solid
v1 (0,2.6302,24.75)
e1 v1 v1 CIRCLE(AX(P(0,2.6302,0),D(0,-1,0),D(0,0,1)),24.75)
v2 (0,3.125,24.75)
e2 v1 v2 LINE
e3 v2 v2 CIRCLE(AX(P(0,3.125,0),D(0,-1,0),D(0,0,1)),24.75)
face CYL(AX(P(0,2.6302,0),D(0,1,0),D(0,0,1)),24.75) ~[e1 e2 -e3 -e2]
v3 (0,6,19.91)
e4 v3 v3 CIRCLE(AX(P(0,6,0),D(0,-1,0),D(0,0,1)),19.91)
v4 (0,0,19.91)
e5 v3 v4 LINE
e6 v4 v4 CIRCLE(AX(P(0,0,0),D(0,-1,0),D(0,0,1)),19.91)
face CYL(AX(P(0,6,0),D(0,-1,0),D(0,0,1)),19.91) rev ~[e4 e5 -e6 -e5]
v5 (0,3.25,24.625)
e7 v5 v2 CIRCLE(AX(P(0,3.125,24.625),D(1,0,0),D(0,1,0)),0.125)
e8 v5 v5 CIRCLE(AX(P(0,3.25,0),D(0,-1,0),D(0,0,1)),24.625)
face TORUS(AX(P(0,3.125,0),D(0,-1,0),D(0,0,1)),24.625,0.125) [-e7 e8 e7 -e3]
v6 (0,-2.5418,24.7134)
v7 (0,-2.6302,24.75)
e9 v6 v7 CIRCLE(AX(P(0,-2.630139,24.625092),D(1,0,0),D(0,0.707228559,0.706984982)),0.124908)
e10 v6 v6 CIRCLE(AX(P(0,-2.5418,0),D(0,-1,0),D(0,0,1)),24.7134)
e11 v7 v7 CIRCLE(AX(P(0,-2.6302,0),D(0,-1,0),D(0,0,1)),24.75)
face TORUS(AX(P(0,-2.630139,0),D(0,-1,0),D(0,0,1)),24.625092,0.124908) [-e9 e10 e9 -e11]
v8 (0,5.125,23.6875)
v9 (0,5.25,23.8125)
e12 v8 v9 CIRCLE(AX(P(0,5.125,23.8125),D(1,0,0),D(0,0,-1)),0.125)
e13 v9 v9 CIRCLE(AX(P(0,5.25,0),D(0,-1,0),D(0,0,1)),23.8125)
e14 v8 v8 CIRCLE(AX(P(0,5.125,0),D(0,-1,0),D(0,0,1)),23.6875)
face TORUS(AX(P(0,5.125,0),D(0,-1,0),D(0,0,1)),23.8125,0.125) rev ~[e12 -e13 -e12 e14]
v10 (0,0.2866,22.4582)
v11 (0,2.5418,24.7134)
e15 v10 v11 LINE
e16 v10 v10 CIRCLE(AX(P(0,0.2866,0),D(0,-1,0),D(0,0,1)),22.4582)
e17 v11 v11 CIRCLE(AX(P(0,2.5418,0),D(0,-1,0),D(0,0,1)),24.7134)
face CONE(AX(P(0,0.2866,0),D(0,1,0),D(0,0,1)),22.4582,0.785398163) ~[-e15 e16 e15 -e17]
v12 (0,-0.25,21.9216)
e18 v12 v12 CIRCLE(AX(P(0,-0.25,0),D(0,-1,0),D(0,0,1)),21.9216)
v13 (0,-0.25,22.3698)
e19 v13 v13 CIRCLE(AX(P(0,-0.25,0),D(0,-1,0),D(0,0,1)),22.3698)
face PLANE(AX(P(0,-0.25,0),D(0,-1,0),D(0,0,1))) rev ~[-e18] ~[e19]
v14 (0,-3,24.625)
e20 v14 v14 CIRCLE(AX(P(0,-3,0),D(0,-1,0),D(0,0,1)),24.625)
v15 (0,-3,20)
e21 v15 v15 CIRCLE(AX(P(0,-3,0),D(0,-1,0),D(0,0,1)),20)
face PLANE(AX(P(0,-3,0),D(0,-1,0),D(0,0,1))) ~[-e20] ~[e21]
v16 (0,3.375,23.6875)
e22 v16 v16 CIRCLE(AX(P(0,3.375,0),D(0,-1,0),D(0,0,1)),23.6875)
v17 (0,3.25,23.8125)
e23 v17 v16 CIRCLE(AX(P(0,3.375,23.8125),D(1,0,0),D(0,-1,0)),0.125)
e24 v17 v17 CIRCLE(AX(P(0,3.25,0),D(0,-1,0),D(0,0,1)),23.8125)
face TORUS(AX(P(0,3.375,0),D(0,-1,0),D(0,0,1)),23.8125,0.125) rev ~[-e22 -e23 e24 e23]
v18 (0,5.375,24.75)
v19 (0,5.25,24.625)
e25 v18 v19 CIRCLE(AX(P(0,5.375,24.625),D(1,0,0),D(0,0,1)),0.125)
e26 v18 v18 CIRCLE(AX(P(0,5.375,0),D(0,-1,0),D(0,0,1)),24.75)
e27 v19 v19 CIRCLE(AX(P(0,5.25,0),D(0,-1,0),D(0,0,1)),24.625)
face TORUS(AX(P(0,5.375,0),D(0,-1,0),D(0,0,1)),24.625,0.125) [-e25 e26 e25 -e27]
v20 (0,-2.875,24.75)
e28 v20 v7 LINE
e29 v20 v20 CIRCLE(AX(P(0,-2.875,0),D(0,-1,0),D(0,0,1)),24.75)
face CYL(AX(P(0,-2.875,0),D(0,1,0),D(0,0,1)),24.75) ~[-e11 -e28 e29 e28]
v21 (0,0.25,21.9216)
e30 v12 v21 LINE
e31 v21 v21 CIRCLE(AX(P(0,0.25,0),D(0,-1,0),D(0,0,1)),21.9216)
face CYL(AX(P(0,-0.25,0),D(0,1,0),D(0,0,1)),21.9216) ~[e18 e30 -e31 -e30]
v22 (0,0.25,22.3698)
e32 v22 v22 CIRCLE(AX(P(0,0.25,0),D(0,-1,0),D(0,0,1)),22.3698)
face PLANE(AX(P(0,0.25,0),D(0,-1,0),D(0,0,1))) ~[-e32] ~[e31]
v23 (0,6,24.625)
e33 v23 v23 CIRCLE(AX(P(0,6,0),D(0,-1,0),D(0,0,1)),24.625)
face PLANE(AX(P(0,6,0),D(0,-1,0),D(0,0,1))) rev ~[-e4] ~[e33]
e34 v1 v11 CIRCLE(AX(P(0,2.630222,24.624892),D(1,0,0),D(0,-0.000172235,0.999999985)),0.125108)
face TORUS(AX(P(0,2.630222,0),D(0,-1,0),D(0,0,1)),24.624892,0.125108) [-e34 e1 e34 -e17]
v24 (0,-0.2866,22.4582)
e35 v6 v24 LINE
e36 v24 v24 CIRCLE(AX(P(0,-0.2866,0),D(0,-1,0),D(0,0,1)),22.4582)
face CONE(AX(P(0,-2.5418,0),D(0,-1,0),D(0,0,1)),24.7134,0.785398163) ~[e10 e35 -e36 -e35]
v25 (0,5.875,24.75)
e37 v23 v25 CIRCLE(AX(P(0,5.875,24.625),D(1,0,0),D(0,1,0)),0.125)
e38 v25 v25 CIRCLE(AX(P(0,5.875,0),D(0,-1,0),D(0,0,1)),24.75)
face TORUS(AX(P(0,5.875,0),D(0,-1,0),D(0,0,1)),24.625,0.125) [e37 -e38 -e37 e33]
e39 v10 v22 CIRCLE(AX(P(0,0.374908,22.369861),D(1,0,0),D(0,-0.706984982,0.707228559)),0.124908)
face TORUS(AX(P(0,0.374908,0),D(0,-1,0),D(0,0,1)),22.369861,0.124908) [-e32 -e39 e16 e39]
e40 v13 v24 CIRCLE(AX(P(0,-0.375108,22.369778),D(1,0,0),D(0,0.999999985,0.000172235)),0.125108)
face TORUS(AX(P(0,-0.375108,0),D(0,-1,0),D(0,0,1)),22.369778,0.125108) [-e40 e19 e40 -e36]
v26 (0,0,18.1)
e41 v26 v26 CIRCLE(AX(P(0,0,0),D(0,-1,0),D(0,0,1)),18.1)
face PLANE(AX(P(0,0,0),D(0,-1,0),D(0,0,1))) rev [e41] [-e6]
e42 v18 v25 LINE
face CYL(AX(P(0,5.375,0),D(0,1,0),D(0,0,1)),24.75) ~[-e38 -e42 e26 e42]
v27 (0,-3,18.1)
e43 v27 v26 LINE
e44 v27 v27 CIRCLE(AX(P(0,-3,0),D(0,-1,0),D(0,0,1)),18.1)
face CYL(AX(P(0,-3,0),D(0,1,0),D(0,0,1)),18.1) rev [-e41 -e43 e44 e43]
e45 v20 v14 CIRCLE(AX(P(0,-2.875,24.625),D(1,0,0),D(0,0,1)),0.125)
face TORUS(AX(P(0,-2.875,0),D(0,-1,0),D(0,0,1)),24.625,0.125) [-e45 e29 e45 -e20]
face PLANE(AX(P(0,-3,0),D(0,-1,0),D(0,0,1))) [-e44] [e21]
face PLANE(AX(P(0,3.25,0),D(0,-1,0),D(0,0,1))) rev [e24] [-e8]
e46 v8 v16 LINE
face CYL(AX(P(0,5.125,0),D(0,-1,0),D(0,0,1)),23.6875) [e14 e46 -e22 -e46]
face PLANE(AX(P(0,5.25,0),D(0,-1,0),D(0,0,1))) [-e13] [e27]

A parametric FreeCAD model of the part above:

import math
import FreeCAD as App
import Part
import Sketcher
Q = App.Units.Quantity

doc = App.newDocument("Part")
params = doc.addObject("Spreadsheet::Sheet", "Params")
for row, (alias, value) in enumerate([
    ("sketch1_width", "6 mm"),
    ("sketch1_width2", "3 mm"),
    ("sketch1_width3", "0.5 mm"),
    ("sketch1_height", "1.81 mm"),
    ("revolution_angle", "360 deg"),
], start=1):
    params.set(f"A{row}", alias)
    params.set(f"B{row}", "=" + value)
    params.setAlias(f"B{row}", alias)

body = doc.addObject("PartDesign::Body", "Body")

sketch1 = body.newObject("Sketcher::SketchObject", "Sketch")
sketch1.AttachmentSupport = (doc.getObject("YZ_Plane"), [""])
sketch1.MapMode = "FlatFace"
sketch1.addGeometry(Part.LineSegment(App.Vector(0, 19.91, 0), App.Vector(6, 19.91, 0)), False)
sketch1.addGeometry(Part.LineSegment(App.Vector(6, 19.91, 0), App.Vector(6, 24.62, 0)), False)
sketch1.addGeometry(Part.ArcOfCircle(Part.Circle(App.Vector(5.88, 24.62, 0), App.Vector(0, 0, 1), 0.12), math.radians(0), math.radians(90)), False)
sketch1.addGeometry(Part.LineSegment(App.Vector(5.88, 24.75, 0), App.Vector(5.38, 24.75, 0)), False)
sketch1.addGeometry(Part.ArcOfCircle(Part.Circle(App.Vector(5.38, 24.62, 0), App.Vector(0, 0, 1), 0.12), math.radians(90), math.radians(180)), False)
sketch1.addGeometry(Part.LineSegment(App.Vector(5.25, 24.62, 0), App.Vector(5.25, 23.81, 0)), False)
sketch1.addGeometry(Part.ArcOfCircle(Part.Circle(App.Vector(5.12, 23.81, 0), App.Vector(0, 0, 1), 0.12), math.radians(-90), math.radians(0)), False)
sketch1.addGeometry(Part.LineSegment(App.Vector(5.12, 23.69, 0), App.Vector(3.38, 23.69, 0)), False)
sketch1.addGeometry(Part.ArcOfCircle(Part.Circle(App.Vector(3.38, 23.81, 0), App.Vector(0, 0, 1), 0.12), math.radians(180), math.radians(270)), False)
sketch1.addGeometry(Part.LineSegment(App.Vector(3.25, 23.81, 0), App.Vector(3.25, 24.62, 0)), False)
sketch1.addGeometry(Part.ArcOfCircle(Part.Circle(App.Vector(3.12, 24.62, 0), App.Vector(0, 0, 1), 0.12), math.radians(0), math.radians(90)), False)
sketch1.addGeometry(Part.LineSegment(App.Vector(3.12, 24.75, 0), App.Vector(2.63, 24.75, 0)), False)
sketch1.addGeometry(Part.ArcOfCircle(Part.Circle(App.Vector(2.63, 24.62, 0), App.Vector(0, 0, 1), 0.12), math.radians(90), math.radians(135)), False)
sketch1.addGeometry(Part.LineSegment(App.Vector(2.54, 24.71, 0), App.Vector(0.29, 22.46, 0)), False)
sketch1.addGeometry(Part.ArcOfCircle(Part.Circle(App.Vector(0.38, 22.37, 0), App.Vector(0, 0, 1), 0.13), math.radians(135), math.radians(180)), False)
sketch1.addGeometry(Part.LineSegment(App.Vector(0.25, 22.37, 0), App.Vector(0.25, 21.92, 0)), False)
sketch1.addGeometry(Part.LineSegment(App.Vector(0.25, 21.92, 0), App.Vector(-0.25, 21.92, 0)), False)
sketch1.addGeometry(Part.LineSegment(App.Vector(-0.25, 21.92, 0), App.Vector(-0.25, 22.37, 0)), False)
sketch1.addGeometry(Part.ArcOfCircle(Part.Circle(App.Vector(-0.38, 22.37, 0), App.Vector(0, 0, 1), 0.12), math.radians(0), math.radians(45)), False)
sketch1.addGeometry(Part.LineSegment(App.Vector(-0.29, 22.46, 0), App.Vector(-2.54, 24.71, 0)), False)
sketch1.addGeometry(Part.ArcOfCircle(Part.Circle(App.Vector(-2.63, 24.62, 0), App.Vector(0, 0, 1), 0.13), math.radians(45), math.radians(90)), False)
sketch1.addGeometry(Part.LineSegment(App.Vector(-2.63, 24.75, 0), App.Vector(-2.88, 24.75, 0)), False)
sketch1.addGeometry(Part.ArcOfCircle(Part.Circle(App.Vector(-2.88, 24.62, 0), App.Vector(0, 0, 1), 0.12), math.radians(90), math.radians(180)), False)
sketch1.addGeometry(Part.LineSegment(App.Vector(-3, 24.62, 0), App.Vector(-3, 18.1, 0)), False)
sketch1.addGeometry(Part.LineSegment(App.Vector(-3, 18.1, 0), App.Vector(0, 18.1, 0)), False)
sketch1.addGeometry(Part.LineSegment(App.Vector(0, 18.1, 0), App.Vector(0, 19.91, 0)), False)
sketch1.addConstraint(Sketcher.Constraint("Coincident", 0, 2, 1, 1))
sketch1.addConstraint(Sketcher.Constraint("Tangent", 1, 2, 2, 1))
sketch1.addConstraint(Sketcher.Constraint("Tangent", 2, 2, 3, 1))
sketch1.addConstraint(Sketcher.Constraint("Tangent", 3, 2, 4, 1))
sketch1.addConstraint(Sketcher.Constraint("Tangent", 4, 2, 5, 1))
sketch1.addConstraint(Sketcher.Constraint("Tangent", 5, 2, 6, 2))
sketch1.addConstraint(Sketcher.Constraint("Tangent", 6, 1, 7, 1))
sketch1.addConstraint(Sketcher.Constraint("Tangent", 7, 2, 8, 2))
sketch1.addConstraint(Sketcher.Constraint("Tangent", 8, 1, 9, 1))
sketch1.addConstraint(Sketcher.Constraint("Tangent", 9, 2, 10, 1))
sketch1.addConstraint(Sketcher.Constraint("Tangent", 10, 2, 11, 1))
sketch1.addConstraint(Sketcher.Constraint("Tangent", 11, 2, 12, 1))
sketch1.addConstraint(Sketcher.Constraint("Tangent", 12, 2, 13, 1))
sketch1.addConstraint(Sketcher.Constraint("Tangent", 13, 2, 14, 1))
sketch1.addConstraint(Sketcher.Constraint("Tangent", 14, 2, 15, 1))
sketch1.addConstraint(Sketcher.Constraint("Coincident", 15, 2, 16, 1))
sketch1.addConstraint(Sketcher.Constraint("Coincident", 16, 2, 17, 1))
sketch1.addConstraint(Sketcher.Constraint("Tangent", 17, 2, 18, 1))
sketch1.addConstraint(Sketcher.Constraint("Tangent", 18, 2, 19, 1))
sketch1.addConstraint(Sketcher.Constraint("Tangent", 19, 2, 20, 1))
sketch1.addConstraint(Sketcher.Constraint("Tangent", 20, 2, 21, 1))
sketch1.addConstraint(Sketcher.Constraint("Tangent", 21, 2, 22, 1))
sketch1.addConstraint(Sketcher.Constraint("Tangent", 22, 2, 23, 1))
sketch1.addConstraint(Sketcher.Constraint("Coincident", 23, 2, 24, 1))
sketch1.addConstraint(Sketcher.Constraint("Coincident", 24, 2, 25, 1))
sketch1.addConstraint(Sketcher.Constraint("Coincident", 25, 2, 0, 1))
sketch1.addConstraint(Sketcher.Constraint("Horizontal", 0))
sketch1.addConstraint(Sketcher.Constraint("Vertical", 1))
sketch1.addConstraint(Sketcher.Constraint("Horizontal", 3))
sketch1.addConstraint(Sketcher.Constraint("Vertical", 5))
sketch1.addConstraint(Sketcher.Constraint("Horizontal", 7))
sketch1.addConstraint(Sketcher.Constraint("Vertical", 9))
sketch1.addConstraint(Sketcher.Constraint("Horizontal", 11))
sketch1.addConstraint(Sketcher.Constraint("Vertical", 15))
sketch1.addConstraint(Sketcher.Constraint("Horizontal", 16))
sketch1.addConstraint(Sketcher.Constraint("Vertical", 17))
sketch1.addConstraint(Sketcher.Constraint("Horizontal", 21))
sketch1.addConstraint(Sketcher.Constraint("Vertical", 23))
sketch1.addConstraint(Sketcher.Constraint("Horizontal", 24))
sketch1.addConstraint(Sketcher.Constraint("Vertical", 25))
sketch1.addConstraint(Sketcher.Constraint("Equal", 2, 4))
sketch1.addConstraint(Sketcher.Constraint("Equal", 4, 6))
sketch1.addConstraint(Sketcher.Constraint("Equal", 6, 8))
sketch1.addConstraint(Sketcher.Constraint("Equal", 8, 10))
sketch1.addConstraint(Sketcher.Constraint("Equal", 10, 12))
sketch1.addConstraint(Sketcher.Constraint("Equal", 12, 14))
sketch1.addConstraint(Sketcher.Constraint("Equal", 14, 18))
sketch1.addConstraint(Sketcher.Constraint("Equal", 18, 20))
sketch1.addConstraint(Sketcher.Constraint("Equal", 20, 22))
sketch1.addConstraint(Sketcher.Constraint("Symmetric", 14, 3, 18, 3, -2))
sketch1.addConstraint(Sketcher.Constraint("Symmetric", 12, 3, 20, 3, -2))
sketch1.addConstraint(Sketcher.Constraint("PointOnObject", 24, 2, -2))
sketch1.addConstraint(Sketcher.Constraint("Perpendicular", 13, 19))
sketch1.addConstraint(Sketcher.Constraint("Horizontal", 4, 3, 10, 3))
sketch1.addConstraint(Sketcher.Constraint("Equal", 3, 16))
sketch1.addConstraint(Sketcher.Constraint("DistanceX", 0, 1, 0, 2, Q("6 mm")))
sketch1.addConstraint(Sketcher.Constraint("DistanceX", 24, 1, 24, 2, Q("3 mm")))
sketch1.addConstraint(Sketcher.Constraint("DistanceX", 3, 2, 3, 1, Q("0.5 mm")))
sketch1.addConstraint(Sketcher.Constraint("Radius", 2, Q("0.125 mm")))
sketch1.addConstraint(Sketcher.Constraint("DistanceX", 8, 3, 4, 3, Q("2 mm")))
sketch1.addConstraint(Sketcher.Constraint("DistanceY", 25, 1, 25, 2, Q("1.81 mm")))
sketch1.addConstraint(Sketcher.Constraint("DistanceY", -1, 1, 23, 2, Q("18.1 mm")))
sketch1.addConstraint(Sketcher.Constraint("DistanceY", 1, 1, 1, 2, Q("4.715 mm")))
sketch1.addConstraint(Sketcher.Constraint("DistanceX", 11, 2, 11, 1, Q("0.4948 mm")))
sketch1.addConstraint(Sketcher.Constraint("DistanceY", 5, 2, 5, 1, Q("0.8125 mm")))
sketch1.addConstraint(Sketcher.Constraint("DistanceY", 15, 2, 15, 1, Q("0.4482 mm")))
sketch1.setExpression("Constraints[55]", "Params.sketch1_width")
sketch1.setExpression("Constraints[56]", "Params.sketch1_width2")
sketch1.setExpression("Constraints[57]", "Params.sketch1_width3")
sketch1.setExpression("Constraints[60]", "Params.sketch1_height")
revolution = body.newObject("PartDesign::Revolution", "Revolution")
revolution.Profile = sketch1
revolution.ReferenceAxis = (sketch1, ["H_Axis"])
revolution.setExpression("Angle", "Params.revolution_angle")

doc.recompute()
